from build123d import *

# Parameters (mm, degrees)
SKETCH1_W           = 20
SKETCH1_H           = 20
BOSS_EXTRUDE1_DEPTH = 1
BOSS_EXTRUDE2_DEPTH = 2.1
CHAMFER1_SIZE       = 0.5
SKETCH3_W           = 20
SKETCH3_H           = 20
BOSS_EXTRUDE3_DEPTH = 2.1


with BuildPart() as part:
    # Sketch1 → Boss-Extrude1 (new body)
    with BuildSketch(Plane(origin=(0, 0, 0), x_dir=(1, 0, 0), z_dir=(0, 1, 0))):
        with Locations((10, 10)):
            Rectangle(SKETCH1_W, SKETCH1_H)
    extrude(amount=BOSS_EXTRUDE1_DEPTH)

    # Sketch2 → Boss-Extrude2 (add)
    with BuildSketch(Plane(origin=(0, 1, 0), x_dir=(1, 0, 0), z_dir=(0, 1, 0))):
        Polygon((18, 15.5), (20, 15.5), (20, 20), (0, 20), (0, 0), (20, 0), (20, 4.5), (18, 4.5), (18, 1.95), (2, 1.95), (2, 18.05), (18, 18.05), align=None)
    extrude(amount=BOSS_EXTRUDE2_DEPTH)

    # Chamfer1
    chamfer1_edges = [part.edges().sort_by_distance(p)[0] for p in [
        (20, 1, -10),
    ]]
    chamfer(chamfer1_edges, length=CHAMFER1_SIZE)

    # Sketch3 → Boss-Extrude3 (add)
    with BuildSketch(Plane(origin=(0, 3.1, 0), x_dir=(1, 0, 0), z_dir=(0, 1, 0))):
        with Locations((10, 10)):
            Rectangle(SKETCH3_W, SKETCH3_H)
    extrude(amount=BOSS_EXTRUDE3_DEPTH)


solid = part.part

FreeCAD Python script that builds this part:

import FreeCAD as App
import Part
import Sketcher
from FreeCAD import Vector


def edges_at(feature, points):
    """Names of the edges that pass closest to the given points."""
    edges = feature.Shape.Edges
    near = lambda p: min(range(len(edges)), key=lambda i: edges[i].distToShape(Part.Vertex(*p))[0])
    return sorted({f"Edge{near(p) + 1}" for p in points})

doc = App.newDocument("Part")
params = doc.addObject("Spreadsheet::Sheet", "Params")
for row, (alias, value) in enumerate([
    ("sketch1_width", "20 mm"),
    ("pad1_length", "1 mm"),
    ("sketch2_width", "2 mm"),
    ("sketch2_width2", "20 mm"),
    ("sketch2_width3", "16 mm"),
    ("sketch2_height", "4.5 mm"),
    ("sketch2_height2", "16.1 mm"),
    ("pad2_length", "2.1 mm"),
    ("chamfer_size", "0.5 mm"),
    ("sketch3_width", "20 mm"),
    ("pad3_length", "2.1 mm"),
], start=1):
    params.set(f"A{row}", alias)
    params.set(f"B{row}", "=" + value)
    params.setAlias(f"B{row}", alias)

body = doc.addObject("PartDesign::Body", "Body")

# Sketch on XZ plane
sketch1 = body.newObject("Sketcher::SketchObject", "Sketch")
sketch1.AttachmentSupport = (doc.getObject("XZ_Plane"), [""])
sketch1.MapMode = "FlatFace"
sketch1.addGeometry([
    Part.LineSegment(Vector(0, -20, 0), Vector(0, 0, 0)),
    Part.LineSegment(Vector(0, 0, 0), Vector(20, 0, 0)),
    Part.LineSegment(Vector(20, 0, 0), Vector(20, -20, 0)),
    Part.LineSegment(Vector(20, -20, 0), Vector(0, -20, 0)),
], False)
sketch1.addConstraint([
    Sketcher.Constraint("Coincident", 0, 2, 1, 1),
    Sketcher.Constraint("Coincident", 1, 2, 2, 1),
    Sketcher.Constraint("Coincident", 2, 2, 3, 1),
    Sketcher.Constraint("Coincident", 3, 2, 0, 1),
    Sketcher.Constraint("Vertical", 0),
    Sketcher.Constraint("Horizontal", 1),
    Sketcher.Constraint("Vertical", 2),
    Sketcher.Constraint("Horizontal", 3),
    Sketcher.Constraint("Coincident", 0, 2, -1, 1),
    Sketcher.Constraint("Equal", 3, 0),
    Sketcher.Constraint("DistanceX", 1, 1, 1, 2, 20.0),
])
sketch1.setExpression("Constraints[10]", "Params.sketch1_width")
pad1 = body.newObject("PartDesign::Pad", "Pad")
pad1.Profile = sketch1
pad1.setExpression("Length", "Params.pad1_length")
pad1.Reversed = True

# Sketch on XZ plane
sketch2 = body.newObject("Sketcher::SketchObject", "Sketch001")
sketch2.AttachmentSupport = (doc.getObject("XZ_Plane"), [""])
sketch2.MapMode = "FlatFace"
sketch2.AttachmentOffset = App.Placement(Vector(0, 0, -1), App.Rotation())
sketch2.addGeometry([
    Part.LineSegment(Vector(18, -15.5, 0), Vector(20, -15.5, 0)),  # 0
    Part.LineSegment(Vector(20, -15.5, 0), Vector(20, -20, 0)),  # 1
    Part.LineSegment(Vector(20, -20, 0), Vector(0, -20, 0)),  # 2
    Part.LineSegment(Vector(0, -20, 0), Vector(0, 0, 0)),  # 3
    Part.LineSegment(Vector(0, 0, 0), Vector(20, 0, 0)),  # 4
    Part.LineSegment(Vector(20, 0, 0), Vector(20, -4.5, 0)),  # 5
    Part.LineSegment(Vector(20, -4.5, 0), Vector(18, -4.5, 0)),  # 6
    Part.LineSegment(Vector(18, -4.5, 0), Vector(18, -1.95, 0)),  # 7
    Part.LineSegment(Vector(18, -1.95, 0), Vector(2, -1.95, 0)),  # 8
    Part.LineSegment(Vector(2, -1.95, 0), Vector(2, -18.05, 0)),  # 9
    Part.LineSegment(Vector(2, -18.05, 0), Vector(18, -18.05, 0)),  # 10
    Part.LineSegment(Vector(18, -18.05, 0), Vector(18, -15.5, 0)),  # 11
], False)
sketch2.addConstraint([
    Sketcher.Constraint("Coincident", 0, 2, 1, 1),
    Sketcher.Constraint("Coincident", 1, 2, 2, 1),
    Sketcher.Constraint("Coincident", 2, 2, 3, 1),
    Sketcher.Constraint("Coincident", 3, 2, 4, 1),
    Sketcher.Constraint("Coincident", 4, 2, 5, 1),
    Sketcher.Constraint("Coincident", 5, 2, 6, 1),
    Sketcher.Constraint("Coincident", 6, 2, 7, 1),
    Sketcher.Constraint("Coincident", 7, 2, 8, 1),
    Sketcher.Constraint("Coincident", 8, 2, 9, 1),
    Sketcher.Constraint("Coincident", 9, 2, 10, 1),
    Sketcher.Constraint("Coincident", 10, 2, 11, 1),
    Sketcher.Constraint("Coincident", 11, 2, 0, 1),
    Sketcher.Constraint("Horizontal", 0),
    Sketcher.Constraint("Vertical", 1),
    Sketcher.Constraint("Horizontal", 2),
    Sketcher.Constraint("Vertical", 3),
    Sketcher.Constraint("Horizontal", 4),
    Sketcher.Constraint("Vertical", 5),
    Sketcher.Constraint("Horizontal", 6),
    Sketcher.Constraint("Vertical", 7),
    Sketcher.Constraint("Horizontal", 8),
    Sketcher.Constraint("Vertical", 9),
    Sketcher.Constraint("Horizontal", 10),
    Sketcher.Constraint("Vertical", 11),
    Sketcher.Constraint("Coincident", 3, 2, -1, 1),
    Sketcher.Constraint("Vertical", 1, 2, 4, 2),
    Sketcher.Constraint("Vertical", 7, 2, 10, 2),
    Sketcher.Constraint("Equal", 4, 3),
    Sketcher.Constraint("Equal", 1, 5),
    Sketcher.Constraint("Equal", 7, 11),
    Sketcher.Constraint("DistanceX", 0, 1, 0, 2, 2.0),
    Sketcher.Constraint("DistanceX", 2, 2, 2, 1, 20.0),
    Sketcher.Constraint("DistanceX", 8, 2, 8, 1, 16.0),
    Sketcher.Constraint("DistanceY", 1, 2, 1, 1, 4.5),
    Sketcher.Constraint("DistanceY", 9, 2, 9, 1, 16.1),
])
sketch2.setExpression("Constraints[30]", "Params.sketch2_width")
sketch2.setExpression("Constraints[31]", "Params.sketch2_width2")
sketch2.setExpression("Constraints[32]", "Params.sketch2_width3")
sketch2.setExpression("Constraints[33]", "Params.sketch2_height")
sketch2.setExpression("Constraints[34]", "Params.sketch2_height2")
pad2 = body.newObject("PartDesign::Pad", "Pad001")
pad2.Profile = sketch2
pad2.setExpression("Length", "Params.pad2_length")
pad2.Reversed = True
doc.recompute()

chamfer = body.newObject("PartDesign::Chamfer", "Chamfer")
chamfer.Base = (pad2, edges_at(pad2, [(20, 1, -10)]))
chamfer.setExpression("Size", "Params.chamfer_size")

# Sketch on XZ plane
sketch3 = body.newObject("Sketcher::SketchObject", "Sketch002")
sketch3.AttachmentSupport = (doc.getObject("XZ_Plane"), [""])
sketch3.MapMode = "FlatFace"
sketch3.AttachmentOffset = App.Placement(Vector(0, 0, -3.1), App.Rotation())
sketch3.addGeometry([
    Part.LineSegment(Vector(0, -20, 0), Vector(0, 0, 0)),
    Part.LineSegment(Vector(0, 0, 0), Vector(20, 0, 0)),
    Part.LineSegment(Vector(20, 0, 0), Vector(20, -20, 0)),
    Part.LineSegment(Vector(20, -20, 0), Vector(0, -20, 0)),
], False)
sketch3.addConstraint([
    Sketcher.Constraint("Coincident", 0, 2, 1, 1),
    Sketcher.Constraint("Coincident", 1, 2, 2, 1),
    Sketcher.Constraint("Coincident", 2, 2, 3, 1),
    Sketcher.Constraint("Coincident", 3, 2, 0, 1),
    Sketcher.Constraint("Vertical", 0),
    Sketcher.Constraint("Horizontal", 1),
    Sketcher.Constraint("Vertical", 2),
    Sketcher.Constraint("Horizontal", 3),
    Sketcher.Constraint("Coincident", 0, 2, -1, 1),
    Sketcher.Constraint("Equal", 3, 0),
    Sketcher.Constraint("DistanceX", 1, 1, 1, 2, 20.0),
])
sketch3.setExpression("Constraints[10]", "Params.sketch3_width")
pad3 = body.newObject("PartDesign::Pad", "Pad002")
pad3.Profile = sketch3
pad3.setExpression("Length", "Params.pad3_length")
pad3.Reversed = True

doc.recompute()
